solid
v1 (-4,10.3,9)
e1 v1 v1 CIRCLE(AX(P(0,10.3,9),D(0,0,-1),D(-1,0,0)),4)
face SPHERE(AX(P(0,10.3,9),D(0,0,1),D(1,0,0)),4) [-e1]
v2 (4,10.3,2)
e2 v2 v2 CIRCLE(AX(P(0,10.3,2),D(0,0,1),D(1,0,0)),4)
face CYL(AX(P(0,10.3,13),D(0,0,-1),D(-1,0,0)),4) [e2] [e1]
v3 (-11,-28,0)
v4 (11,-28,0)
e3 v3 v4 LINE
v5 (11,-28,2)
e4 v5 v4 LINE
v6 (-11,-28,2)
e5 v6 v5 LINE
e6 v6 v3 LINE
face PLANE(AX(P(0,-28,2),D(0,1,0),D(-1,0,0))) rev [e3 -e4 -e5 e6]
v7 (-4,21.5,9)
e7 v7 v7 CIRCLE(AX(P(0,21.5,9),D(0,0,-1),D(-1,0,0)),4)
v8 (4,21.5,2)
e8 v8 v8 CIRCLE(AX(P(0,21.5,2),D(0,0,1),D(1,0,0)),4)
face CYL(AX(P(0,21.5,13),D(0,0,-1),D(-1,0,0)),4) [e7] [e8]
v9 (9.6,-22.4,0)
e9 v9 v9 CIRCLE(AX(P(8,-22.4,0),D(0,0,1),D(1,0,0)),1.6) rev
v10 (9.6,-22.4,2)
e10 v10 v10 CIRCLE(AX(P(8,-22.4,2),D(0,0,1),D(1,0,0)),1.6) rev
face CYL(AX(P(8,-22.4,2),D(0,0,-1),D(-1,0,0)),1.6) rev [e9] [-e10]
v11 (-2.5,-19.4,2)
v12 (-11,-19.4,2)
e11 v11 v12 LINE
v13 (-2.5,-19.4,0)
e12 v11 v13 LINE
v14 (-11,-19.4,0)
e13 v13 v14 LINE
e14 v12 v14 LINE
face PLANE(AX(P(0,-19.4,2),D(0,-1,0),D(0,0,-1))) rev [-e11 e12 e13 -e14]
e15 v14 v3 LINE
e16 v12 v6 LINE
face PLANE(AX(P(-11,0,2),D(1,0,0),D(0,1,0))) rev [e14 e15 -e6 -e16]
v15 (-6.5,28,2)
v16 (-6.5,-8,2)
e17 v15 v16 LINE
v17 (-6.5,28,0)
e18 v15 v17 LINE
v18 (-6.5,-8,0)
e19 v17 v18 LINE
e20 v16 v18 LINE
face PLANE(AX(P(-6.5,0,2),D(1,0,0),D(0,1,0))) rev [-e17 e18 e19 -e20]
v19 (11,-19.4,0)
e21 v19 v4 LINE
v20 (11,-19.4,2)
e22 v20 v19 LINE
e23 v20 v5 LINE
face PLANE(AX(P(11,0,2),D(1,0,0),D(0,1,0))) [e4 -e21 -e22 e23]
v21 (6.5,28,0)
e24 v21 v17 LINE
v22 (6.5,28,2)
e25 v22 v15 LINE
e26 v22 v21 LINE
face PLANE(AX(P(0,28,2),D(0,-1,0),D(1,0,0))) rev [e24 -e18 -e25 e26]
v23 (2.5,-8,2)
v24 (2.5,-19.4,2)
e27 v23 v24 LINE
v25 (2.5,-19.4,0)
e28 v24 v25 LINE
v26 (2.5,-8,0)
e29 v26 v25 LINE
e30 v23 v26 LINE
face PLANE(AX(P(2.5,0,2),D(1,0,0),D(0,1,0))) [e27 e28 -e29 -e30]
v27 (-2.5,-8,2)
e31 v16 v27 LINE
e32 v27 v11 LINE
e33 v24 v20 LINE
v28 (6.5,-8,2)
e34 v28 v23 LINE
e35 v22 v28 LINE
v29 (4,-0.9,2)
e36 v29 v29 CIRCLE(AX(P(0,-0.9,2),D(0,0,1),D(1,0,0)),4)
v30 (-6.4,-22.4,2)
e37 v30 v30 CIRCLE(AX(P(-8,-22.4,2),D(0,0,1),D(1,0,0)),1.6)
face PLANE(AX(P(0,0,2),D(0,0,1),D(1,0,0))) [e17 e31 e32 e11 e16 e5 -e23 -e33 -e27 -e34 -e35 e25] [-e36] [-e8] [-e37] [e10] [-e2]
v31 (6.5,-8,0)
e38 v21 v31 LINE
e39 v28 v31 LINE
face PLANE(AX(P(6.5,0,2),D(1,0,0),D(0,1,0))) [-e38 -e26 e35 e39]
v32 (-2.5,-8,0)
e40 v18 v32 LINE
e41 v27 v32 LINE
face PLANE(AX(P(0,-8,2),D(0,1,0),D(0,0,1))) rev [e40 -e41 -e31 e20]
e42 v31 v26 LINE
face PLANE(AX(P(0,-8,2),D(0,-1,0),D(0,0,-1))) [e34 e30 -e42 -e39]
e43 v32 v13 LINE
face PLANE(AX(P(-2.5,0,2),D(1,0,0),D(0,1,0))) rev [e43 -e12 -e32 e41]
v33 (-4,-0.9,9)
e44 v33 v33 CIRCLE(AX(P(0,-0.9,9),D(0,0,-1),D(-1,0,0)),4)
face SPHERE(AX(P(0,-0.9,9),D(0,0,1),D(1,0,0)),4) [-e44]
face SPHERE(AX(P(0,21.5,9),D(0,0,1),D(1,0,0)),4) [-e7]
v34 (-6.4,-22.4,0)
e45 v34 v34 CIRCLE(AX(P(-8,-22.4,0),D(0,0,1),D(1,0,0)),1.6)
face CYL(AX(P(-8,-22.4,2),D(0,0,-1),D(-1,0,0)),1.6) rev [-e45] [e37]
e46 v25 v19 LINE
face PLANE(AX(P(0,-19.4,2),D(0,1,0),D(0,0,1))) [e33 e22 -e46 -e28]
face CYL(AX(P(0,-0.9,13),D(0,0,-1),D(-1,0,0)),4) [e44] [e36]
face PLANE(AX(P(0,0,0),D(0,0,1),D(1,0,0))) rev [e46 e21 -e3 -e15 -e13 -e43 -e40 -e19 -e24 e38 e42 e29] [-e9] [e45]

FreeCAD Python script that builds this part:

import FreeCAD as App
import Part
import Sketcher

V = App.Vector
Q = App.Units.Quantity


def edges_at(feature, points):
    """Names of the edges that pass closest to the given points."""
    edges = feature.Shape.Edges
    near = lambda p: min(range(len(edges)), key=lambda i: edges[i].distToShape(Part.Vertex(*p))[0])
    return sorted({f"Edge{near(p) + 1}" for p in points})

doc = App.newDocument("Part")
body = doc.addObject("PartDesign::Body", "Body")

# Sketch on XY plane
sketch1 = body.newObject("Sketcher::SketchObject", "Sketch")
sketch1.AttachmentSupport = (doc.getObject("XY_Plane"), [""])
sketch1.MapMode = "FlatFace"
sketch1.addGeometry(Part.LineSegment(V(-6.5, 28, 0), V(-6.5, -8, 0)), False)
sketch1.addGeometry(Part.LineSegment(V(-6.5, -8, 0), V(-2.5, -8, 0)), False)
sketch1.addGeometry(Part.LineSegment(V(-2.5, -8, 0), V(-2.5, -19.4, 0)), False)
sketch1.addGeometry(Part.LineSegment(V(-2.5, -19.4, 0), V(-11, -19.4, 0)), False)
sketch1.addGeometry(Part.LineSegment(V(-11, -19.4, 0), V(-11, -28, 0)), False)
sketch1.addGeometry(Part.LineSegment(V(-11, -28, 0), V(11, -28, 0)), False)
sketch1.addGeometry(Part.LineSegment(V(11, -28, 0), V(11, -19.4, 0)), False)
sketch1.addGeometry(Part.LineSegment(V(11, -19.4, 0), V(2.5, -19.4, 0)), False)
sketch1.addGeometry(Part.LineSegment(V(2.5, -19.4, 0), V(2.5, -8, 0)), False)
sketch1.addGeometry(Part.LineSegment(V(2.5, -8, 0), V(6.5, -8, 0)), False)
sketch1.addGeometry(Part.LineSegment(V(6.5, -8, 0), V(6.5, 28, 0)), False)
sketch1.addGeometry(Part.LineSegment(V(6.5, 28, 0), V(-6.5, 28, 0)), False)
sketch1.addGeometry(Part.Circle(V(-8, -22.4, 0), V(0, 0, 1), 1.6), False)
sketch1.addGeometry(Part.Circle(V(8, -22.4, 0), V(0, 0, 1), 1.6), False)
sketch1.addConstraint(Sketcher.Constraint("Coincident", 0, 2, 1, 1))
sketch1.addConstraint(Sketcher.Constraint("Coincident", 1, 2, 2, 1))
sketch1.addConstraint(Sketcher.Constraint("Coincident", 2, 2, 3, 1))
sketch1.addConstraint(Sketcher.Constraint("Coincident", 3, 2, 4, 1))
sketch1.addConstraint(Sketcher.Constraint("Coincident", 4, 2, 5, 1))
sketch1.addConstraint(Sketcher.Constraint("Coincident", 5, 2, 6, 1))
sketch1.addConstraint(Sketcher.Constraint("Coincident", 6, 2, 7, 1))
sketch1.addConstraint(Sketcher.Constraint("Coincident", 7, 2, 8, 1))
sketch1.addConstraint(Sketcher.Constraint("Coincident", 8, 2, 9, 1))
sketch1.addConstraint(Sketcher.Constraint("Coincident", 9, 2, 10, 1))
sketch1.addConstraint(Sketcher.Constraint("Coincident", 10, 2, 11, 1))
sketch1.addConstraint(Sketcher.Constraint("Coincident", 11, 2, 0, 1))
sketch1.addConstraint(Sketcher.Constraint("Vertical", 0))
sketch1.addConstraint(Sketcher.Constraint("Horizontal", 1))
sketch1.addConstraint(Sketcher.Constraint("Vertical", 2))
sketch1.addConstraint(Sketcher.Constraint("Horizontal", 3))
sketch1.addConstraint(Sketcher.Constraint("Vertical", 4))
sketch1.addConstraint(Sketcher.Constraint("Horizontal", 5))
sketch1.addConstraint(Sketcher.Constraint("Vertical", 6))
sketch1.addConstraint(Sketcher.Constraint("Horizontal", 7))
sketch1.addConstraint(Sketcher.Constraint("Vertical", 8))
sketch1.addConstraint(Sketcher.Constraint("Horizontal", 9))
sketch1.addConstraint(Sketcher.Constraint("Vertical", 10))
sketch1.addConstraint(Sketcher.Constraint("Horizontal", 11))
sketch1.addConstraint(Sketcher.Constraint("Equal", 12, 13))
sketch1.addConstraint(Sketcher.Constraint("Symmetric", 12, 3, 13, 3, -2))
sketch1.addConstraint(Sketcher.Constraint("Symmetric", 3, 2, 6, 2, -2))
sketch1.addConstraint(Sketcher.Constraint("Symmetric", 1, 2, 8, 2, -2))
sketch1.addConstraint(Sketcher.Constraint("Equal", 1, 9))
sketch1.addConstraint(Sketcher.Constraint("Diameter", 12, Q("3.2 mm")))
sketch1.addConstraint(Sketcher.Constraint("DistanceX", 1, 1, 1, 2, Q("4 mm")))
sketch1.addConstraint(Sketcher.Constraint("DistanceX", 5, 1, 5, 2, Q("22 mm")))
sketch1.addConstraint(Sketcher.Constraint("DistanceX", 11, 2, 11, 1, Q("13 mm")))
sketch1.addConstraint(Sketcher.Constraint("DistanceY", 0, 2, 0, 1, Q("36 mm")))
sketch1.addConstraint(Sketcher.Constraint("DistanceY", 2, 2, 2, 1, Q("11.4 mm")))
sketch1.addConstraint(Sketcher.Constraint("DistanceY", 4, 2, 4, 1, Q("8.6 mm")))
sketch1.addConstraint(Sketcher.Constraint("DistanceX", 12, 3, -1, 1, Q("8 mm")))
sketch1.addConstraint(Sketcher.Constraint("DistanceY", 0, 2, -1, 1, Q("8 mm")))
sketch1.addConstraint(Sketcher.Constraint("DistanceY", 12, 3, 2, 2, Q("3 mm")))
pad1 = body.newObject("PartDesign::Pad", "Pad")
pad1.Profile = sketch1
pad1.Length = 2

# Sketch on XY plane
sketch2 = body.newObject("Sketcher::SketchObject", "Sketch001")
sketch2.AttachmentSupport = (doc.getObject("XY_Plane"), [""])
sketch2.MapMode = "FlatFace"
sketch2.AttachmentOffset = App.Placement(V(0, 0, 2), App.Rotation())
sketch2.addGeometry(Part.Circle(V(0, 21.5, 0), V(0, 0, 1), 4), False)
sketch2.addGeometry(Part.Circle(V(0, 10.3, 0), V(0, 0, 1), 4), False)
sketch2.addGeometry(Part.Circle(V(0, -0.9, 0), V(0, 0, 1), 4), False)
sketch2.addConstraint(Sketcher.Constraint("Equal", 0, 1))
sketch2.addConstraint(Sketcher.Constraint("Equal", 1, 2))
sketch2.addConstraint(Sketcher.Constraint("PointOnObject", 0, 3, -2))
sketch2.addConstraint(Sketcher.Constraint("PointOnObject", 1, 3, -2))
sketch2.addConstraint(Sketcher.Constraint("PointOnObject", 2, 3, -2))
sketch2.addConstraint(Sketcher.Constraint("Diameter", 0, Q("8 mm")))
sketch2.addConstraint(Sketcher.Constraint("DistanceY", -1, 1, 0, 3, Q("21.5 mm")))
sketch2.addConstraint(Sketcher.Constraint("DistanceY", -1, 1, 1, 3, Q("10.3 mm")))
sketch2.addConstraint(Sketcher.Constraint("DistanceY", 2, 3, -1, 1, Q("0.9 mm")))
pad2 = body.newObject("PartDesign::Pad", "Pad001")
pad2.Profile = sketch2
pad2.Length = 11
doc.recompute()

fillet = body.newObject("PartDesign::Fillet", "Fillet")
fillet.Base = (pad2, edges_at(pad2, [(-4, 21.5, 13)]))
fillet.Radius = 4
doc.recompute()

fillet2 = body.newObject("PartDesign::Fillet", "Fillet001")
fillet2.Base = (fillet, edges_at(fillet, [(-4, 10.3, 13), (-4, -0.9, 13)]))
fillet2.Radius = 4

doc.recompute()
